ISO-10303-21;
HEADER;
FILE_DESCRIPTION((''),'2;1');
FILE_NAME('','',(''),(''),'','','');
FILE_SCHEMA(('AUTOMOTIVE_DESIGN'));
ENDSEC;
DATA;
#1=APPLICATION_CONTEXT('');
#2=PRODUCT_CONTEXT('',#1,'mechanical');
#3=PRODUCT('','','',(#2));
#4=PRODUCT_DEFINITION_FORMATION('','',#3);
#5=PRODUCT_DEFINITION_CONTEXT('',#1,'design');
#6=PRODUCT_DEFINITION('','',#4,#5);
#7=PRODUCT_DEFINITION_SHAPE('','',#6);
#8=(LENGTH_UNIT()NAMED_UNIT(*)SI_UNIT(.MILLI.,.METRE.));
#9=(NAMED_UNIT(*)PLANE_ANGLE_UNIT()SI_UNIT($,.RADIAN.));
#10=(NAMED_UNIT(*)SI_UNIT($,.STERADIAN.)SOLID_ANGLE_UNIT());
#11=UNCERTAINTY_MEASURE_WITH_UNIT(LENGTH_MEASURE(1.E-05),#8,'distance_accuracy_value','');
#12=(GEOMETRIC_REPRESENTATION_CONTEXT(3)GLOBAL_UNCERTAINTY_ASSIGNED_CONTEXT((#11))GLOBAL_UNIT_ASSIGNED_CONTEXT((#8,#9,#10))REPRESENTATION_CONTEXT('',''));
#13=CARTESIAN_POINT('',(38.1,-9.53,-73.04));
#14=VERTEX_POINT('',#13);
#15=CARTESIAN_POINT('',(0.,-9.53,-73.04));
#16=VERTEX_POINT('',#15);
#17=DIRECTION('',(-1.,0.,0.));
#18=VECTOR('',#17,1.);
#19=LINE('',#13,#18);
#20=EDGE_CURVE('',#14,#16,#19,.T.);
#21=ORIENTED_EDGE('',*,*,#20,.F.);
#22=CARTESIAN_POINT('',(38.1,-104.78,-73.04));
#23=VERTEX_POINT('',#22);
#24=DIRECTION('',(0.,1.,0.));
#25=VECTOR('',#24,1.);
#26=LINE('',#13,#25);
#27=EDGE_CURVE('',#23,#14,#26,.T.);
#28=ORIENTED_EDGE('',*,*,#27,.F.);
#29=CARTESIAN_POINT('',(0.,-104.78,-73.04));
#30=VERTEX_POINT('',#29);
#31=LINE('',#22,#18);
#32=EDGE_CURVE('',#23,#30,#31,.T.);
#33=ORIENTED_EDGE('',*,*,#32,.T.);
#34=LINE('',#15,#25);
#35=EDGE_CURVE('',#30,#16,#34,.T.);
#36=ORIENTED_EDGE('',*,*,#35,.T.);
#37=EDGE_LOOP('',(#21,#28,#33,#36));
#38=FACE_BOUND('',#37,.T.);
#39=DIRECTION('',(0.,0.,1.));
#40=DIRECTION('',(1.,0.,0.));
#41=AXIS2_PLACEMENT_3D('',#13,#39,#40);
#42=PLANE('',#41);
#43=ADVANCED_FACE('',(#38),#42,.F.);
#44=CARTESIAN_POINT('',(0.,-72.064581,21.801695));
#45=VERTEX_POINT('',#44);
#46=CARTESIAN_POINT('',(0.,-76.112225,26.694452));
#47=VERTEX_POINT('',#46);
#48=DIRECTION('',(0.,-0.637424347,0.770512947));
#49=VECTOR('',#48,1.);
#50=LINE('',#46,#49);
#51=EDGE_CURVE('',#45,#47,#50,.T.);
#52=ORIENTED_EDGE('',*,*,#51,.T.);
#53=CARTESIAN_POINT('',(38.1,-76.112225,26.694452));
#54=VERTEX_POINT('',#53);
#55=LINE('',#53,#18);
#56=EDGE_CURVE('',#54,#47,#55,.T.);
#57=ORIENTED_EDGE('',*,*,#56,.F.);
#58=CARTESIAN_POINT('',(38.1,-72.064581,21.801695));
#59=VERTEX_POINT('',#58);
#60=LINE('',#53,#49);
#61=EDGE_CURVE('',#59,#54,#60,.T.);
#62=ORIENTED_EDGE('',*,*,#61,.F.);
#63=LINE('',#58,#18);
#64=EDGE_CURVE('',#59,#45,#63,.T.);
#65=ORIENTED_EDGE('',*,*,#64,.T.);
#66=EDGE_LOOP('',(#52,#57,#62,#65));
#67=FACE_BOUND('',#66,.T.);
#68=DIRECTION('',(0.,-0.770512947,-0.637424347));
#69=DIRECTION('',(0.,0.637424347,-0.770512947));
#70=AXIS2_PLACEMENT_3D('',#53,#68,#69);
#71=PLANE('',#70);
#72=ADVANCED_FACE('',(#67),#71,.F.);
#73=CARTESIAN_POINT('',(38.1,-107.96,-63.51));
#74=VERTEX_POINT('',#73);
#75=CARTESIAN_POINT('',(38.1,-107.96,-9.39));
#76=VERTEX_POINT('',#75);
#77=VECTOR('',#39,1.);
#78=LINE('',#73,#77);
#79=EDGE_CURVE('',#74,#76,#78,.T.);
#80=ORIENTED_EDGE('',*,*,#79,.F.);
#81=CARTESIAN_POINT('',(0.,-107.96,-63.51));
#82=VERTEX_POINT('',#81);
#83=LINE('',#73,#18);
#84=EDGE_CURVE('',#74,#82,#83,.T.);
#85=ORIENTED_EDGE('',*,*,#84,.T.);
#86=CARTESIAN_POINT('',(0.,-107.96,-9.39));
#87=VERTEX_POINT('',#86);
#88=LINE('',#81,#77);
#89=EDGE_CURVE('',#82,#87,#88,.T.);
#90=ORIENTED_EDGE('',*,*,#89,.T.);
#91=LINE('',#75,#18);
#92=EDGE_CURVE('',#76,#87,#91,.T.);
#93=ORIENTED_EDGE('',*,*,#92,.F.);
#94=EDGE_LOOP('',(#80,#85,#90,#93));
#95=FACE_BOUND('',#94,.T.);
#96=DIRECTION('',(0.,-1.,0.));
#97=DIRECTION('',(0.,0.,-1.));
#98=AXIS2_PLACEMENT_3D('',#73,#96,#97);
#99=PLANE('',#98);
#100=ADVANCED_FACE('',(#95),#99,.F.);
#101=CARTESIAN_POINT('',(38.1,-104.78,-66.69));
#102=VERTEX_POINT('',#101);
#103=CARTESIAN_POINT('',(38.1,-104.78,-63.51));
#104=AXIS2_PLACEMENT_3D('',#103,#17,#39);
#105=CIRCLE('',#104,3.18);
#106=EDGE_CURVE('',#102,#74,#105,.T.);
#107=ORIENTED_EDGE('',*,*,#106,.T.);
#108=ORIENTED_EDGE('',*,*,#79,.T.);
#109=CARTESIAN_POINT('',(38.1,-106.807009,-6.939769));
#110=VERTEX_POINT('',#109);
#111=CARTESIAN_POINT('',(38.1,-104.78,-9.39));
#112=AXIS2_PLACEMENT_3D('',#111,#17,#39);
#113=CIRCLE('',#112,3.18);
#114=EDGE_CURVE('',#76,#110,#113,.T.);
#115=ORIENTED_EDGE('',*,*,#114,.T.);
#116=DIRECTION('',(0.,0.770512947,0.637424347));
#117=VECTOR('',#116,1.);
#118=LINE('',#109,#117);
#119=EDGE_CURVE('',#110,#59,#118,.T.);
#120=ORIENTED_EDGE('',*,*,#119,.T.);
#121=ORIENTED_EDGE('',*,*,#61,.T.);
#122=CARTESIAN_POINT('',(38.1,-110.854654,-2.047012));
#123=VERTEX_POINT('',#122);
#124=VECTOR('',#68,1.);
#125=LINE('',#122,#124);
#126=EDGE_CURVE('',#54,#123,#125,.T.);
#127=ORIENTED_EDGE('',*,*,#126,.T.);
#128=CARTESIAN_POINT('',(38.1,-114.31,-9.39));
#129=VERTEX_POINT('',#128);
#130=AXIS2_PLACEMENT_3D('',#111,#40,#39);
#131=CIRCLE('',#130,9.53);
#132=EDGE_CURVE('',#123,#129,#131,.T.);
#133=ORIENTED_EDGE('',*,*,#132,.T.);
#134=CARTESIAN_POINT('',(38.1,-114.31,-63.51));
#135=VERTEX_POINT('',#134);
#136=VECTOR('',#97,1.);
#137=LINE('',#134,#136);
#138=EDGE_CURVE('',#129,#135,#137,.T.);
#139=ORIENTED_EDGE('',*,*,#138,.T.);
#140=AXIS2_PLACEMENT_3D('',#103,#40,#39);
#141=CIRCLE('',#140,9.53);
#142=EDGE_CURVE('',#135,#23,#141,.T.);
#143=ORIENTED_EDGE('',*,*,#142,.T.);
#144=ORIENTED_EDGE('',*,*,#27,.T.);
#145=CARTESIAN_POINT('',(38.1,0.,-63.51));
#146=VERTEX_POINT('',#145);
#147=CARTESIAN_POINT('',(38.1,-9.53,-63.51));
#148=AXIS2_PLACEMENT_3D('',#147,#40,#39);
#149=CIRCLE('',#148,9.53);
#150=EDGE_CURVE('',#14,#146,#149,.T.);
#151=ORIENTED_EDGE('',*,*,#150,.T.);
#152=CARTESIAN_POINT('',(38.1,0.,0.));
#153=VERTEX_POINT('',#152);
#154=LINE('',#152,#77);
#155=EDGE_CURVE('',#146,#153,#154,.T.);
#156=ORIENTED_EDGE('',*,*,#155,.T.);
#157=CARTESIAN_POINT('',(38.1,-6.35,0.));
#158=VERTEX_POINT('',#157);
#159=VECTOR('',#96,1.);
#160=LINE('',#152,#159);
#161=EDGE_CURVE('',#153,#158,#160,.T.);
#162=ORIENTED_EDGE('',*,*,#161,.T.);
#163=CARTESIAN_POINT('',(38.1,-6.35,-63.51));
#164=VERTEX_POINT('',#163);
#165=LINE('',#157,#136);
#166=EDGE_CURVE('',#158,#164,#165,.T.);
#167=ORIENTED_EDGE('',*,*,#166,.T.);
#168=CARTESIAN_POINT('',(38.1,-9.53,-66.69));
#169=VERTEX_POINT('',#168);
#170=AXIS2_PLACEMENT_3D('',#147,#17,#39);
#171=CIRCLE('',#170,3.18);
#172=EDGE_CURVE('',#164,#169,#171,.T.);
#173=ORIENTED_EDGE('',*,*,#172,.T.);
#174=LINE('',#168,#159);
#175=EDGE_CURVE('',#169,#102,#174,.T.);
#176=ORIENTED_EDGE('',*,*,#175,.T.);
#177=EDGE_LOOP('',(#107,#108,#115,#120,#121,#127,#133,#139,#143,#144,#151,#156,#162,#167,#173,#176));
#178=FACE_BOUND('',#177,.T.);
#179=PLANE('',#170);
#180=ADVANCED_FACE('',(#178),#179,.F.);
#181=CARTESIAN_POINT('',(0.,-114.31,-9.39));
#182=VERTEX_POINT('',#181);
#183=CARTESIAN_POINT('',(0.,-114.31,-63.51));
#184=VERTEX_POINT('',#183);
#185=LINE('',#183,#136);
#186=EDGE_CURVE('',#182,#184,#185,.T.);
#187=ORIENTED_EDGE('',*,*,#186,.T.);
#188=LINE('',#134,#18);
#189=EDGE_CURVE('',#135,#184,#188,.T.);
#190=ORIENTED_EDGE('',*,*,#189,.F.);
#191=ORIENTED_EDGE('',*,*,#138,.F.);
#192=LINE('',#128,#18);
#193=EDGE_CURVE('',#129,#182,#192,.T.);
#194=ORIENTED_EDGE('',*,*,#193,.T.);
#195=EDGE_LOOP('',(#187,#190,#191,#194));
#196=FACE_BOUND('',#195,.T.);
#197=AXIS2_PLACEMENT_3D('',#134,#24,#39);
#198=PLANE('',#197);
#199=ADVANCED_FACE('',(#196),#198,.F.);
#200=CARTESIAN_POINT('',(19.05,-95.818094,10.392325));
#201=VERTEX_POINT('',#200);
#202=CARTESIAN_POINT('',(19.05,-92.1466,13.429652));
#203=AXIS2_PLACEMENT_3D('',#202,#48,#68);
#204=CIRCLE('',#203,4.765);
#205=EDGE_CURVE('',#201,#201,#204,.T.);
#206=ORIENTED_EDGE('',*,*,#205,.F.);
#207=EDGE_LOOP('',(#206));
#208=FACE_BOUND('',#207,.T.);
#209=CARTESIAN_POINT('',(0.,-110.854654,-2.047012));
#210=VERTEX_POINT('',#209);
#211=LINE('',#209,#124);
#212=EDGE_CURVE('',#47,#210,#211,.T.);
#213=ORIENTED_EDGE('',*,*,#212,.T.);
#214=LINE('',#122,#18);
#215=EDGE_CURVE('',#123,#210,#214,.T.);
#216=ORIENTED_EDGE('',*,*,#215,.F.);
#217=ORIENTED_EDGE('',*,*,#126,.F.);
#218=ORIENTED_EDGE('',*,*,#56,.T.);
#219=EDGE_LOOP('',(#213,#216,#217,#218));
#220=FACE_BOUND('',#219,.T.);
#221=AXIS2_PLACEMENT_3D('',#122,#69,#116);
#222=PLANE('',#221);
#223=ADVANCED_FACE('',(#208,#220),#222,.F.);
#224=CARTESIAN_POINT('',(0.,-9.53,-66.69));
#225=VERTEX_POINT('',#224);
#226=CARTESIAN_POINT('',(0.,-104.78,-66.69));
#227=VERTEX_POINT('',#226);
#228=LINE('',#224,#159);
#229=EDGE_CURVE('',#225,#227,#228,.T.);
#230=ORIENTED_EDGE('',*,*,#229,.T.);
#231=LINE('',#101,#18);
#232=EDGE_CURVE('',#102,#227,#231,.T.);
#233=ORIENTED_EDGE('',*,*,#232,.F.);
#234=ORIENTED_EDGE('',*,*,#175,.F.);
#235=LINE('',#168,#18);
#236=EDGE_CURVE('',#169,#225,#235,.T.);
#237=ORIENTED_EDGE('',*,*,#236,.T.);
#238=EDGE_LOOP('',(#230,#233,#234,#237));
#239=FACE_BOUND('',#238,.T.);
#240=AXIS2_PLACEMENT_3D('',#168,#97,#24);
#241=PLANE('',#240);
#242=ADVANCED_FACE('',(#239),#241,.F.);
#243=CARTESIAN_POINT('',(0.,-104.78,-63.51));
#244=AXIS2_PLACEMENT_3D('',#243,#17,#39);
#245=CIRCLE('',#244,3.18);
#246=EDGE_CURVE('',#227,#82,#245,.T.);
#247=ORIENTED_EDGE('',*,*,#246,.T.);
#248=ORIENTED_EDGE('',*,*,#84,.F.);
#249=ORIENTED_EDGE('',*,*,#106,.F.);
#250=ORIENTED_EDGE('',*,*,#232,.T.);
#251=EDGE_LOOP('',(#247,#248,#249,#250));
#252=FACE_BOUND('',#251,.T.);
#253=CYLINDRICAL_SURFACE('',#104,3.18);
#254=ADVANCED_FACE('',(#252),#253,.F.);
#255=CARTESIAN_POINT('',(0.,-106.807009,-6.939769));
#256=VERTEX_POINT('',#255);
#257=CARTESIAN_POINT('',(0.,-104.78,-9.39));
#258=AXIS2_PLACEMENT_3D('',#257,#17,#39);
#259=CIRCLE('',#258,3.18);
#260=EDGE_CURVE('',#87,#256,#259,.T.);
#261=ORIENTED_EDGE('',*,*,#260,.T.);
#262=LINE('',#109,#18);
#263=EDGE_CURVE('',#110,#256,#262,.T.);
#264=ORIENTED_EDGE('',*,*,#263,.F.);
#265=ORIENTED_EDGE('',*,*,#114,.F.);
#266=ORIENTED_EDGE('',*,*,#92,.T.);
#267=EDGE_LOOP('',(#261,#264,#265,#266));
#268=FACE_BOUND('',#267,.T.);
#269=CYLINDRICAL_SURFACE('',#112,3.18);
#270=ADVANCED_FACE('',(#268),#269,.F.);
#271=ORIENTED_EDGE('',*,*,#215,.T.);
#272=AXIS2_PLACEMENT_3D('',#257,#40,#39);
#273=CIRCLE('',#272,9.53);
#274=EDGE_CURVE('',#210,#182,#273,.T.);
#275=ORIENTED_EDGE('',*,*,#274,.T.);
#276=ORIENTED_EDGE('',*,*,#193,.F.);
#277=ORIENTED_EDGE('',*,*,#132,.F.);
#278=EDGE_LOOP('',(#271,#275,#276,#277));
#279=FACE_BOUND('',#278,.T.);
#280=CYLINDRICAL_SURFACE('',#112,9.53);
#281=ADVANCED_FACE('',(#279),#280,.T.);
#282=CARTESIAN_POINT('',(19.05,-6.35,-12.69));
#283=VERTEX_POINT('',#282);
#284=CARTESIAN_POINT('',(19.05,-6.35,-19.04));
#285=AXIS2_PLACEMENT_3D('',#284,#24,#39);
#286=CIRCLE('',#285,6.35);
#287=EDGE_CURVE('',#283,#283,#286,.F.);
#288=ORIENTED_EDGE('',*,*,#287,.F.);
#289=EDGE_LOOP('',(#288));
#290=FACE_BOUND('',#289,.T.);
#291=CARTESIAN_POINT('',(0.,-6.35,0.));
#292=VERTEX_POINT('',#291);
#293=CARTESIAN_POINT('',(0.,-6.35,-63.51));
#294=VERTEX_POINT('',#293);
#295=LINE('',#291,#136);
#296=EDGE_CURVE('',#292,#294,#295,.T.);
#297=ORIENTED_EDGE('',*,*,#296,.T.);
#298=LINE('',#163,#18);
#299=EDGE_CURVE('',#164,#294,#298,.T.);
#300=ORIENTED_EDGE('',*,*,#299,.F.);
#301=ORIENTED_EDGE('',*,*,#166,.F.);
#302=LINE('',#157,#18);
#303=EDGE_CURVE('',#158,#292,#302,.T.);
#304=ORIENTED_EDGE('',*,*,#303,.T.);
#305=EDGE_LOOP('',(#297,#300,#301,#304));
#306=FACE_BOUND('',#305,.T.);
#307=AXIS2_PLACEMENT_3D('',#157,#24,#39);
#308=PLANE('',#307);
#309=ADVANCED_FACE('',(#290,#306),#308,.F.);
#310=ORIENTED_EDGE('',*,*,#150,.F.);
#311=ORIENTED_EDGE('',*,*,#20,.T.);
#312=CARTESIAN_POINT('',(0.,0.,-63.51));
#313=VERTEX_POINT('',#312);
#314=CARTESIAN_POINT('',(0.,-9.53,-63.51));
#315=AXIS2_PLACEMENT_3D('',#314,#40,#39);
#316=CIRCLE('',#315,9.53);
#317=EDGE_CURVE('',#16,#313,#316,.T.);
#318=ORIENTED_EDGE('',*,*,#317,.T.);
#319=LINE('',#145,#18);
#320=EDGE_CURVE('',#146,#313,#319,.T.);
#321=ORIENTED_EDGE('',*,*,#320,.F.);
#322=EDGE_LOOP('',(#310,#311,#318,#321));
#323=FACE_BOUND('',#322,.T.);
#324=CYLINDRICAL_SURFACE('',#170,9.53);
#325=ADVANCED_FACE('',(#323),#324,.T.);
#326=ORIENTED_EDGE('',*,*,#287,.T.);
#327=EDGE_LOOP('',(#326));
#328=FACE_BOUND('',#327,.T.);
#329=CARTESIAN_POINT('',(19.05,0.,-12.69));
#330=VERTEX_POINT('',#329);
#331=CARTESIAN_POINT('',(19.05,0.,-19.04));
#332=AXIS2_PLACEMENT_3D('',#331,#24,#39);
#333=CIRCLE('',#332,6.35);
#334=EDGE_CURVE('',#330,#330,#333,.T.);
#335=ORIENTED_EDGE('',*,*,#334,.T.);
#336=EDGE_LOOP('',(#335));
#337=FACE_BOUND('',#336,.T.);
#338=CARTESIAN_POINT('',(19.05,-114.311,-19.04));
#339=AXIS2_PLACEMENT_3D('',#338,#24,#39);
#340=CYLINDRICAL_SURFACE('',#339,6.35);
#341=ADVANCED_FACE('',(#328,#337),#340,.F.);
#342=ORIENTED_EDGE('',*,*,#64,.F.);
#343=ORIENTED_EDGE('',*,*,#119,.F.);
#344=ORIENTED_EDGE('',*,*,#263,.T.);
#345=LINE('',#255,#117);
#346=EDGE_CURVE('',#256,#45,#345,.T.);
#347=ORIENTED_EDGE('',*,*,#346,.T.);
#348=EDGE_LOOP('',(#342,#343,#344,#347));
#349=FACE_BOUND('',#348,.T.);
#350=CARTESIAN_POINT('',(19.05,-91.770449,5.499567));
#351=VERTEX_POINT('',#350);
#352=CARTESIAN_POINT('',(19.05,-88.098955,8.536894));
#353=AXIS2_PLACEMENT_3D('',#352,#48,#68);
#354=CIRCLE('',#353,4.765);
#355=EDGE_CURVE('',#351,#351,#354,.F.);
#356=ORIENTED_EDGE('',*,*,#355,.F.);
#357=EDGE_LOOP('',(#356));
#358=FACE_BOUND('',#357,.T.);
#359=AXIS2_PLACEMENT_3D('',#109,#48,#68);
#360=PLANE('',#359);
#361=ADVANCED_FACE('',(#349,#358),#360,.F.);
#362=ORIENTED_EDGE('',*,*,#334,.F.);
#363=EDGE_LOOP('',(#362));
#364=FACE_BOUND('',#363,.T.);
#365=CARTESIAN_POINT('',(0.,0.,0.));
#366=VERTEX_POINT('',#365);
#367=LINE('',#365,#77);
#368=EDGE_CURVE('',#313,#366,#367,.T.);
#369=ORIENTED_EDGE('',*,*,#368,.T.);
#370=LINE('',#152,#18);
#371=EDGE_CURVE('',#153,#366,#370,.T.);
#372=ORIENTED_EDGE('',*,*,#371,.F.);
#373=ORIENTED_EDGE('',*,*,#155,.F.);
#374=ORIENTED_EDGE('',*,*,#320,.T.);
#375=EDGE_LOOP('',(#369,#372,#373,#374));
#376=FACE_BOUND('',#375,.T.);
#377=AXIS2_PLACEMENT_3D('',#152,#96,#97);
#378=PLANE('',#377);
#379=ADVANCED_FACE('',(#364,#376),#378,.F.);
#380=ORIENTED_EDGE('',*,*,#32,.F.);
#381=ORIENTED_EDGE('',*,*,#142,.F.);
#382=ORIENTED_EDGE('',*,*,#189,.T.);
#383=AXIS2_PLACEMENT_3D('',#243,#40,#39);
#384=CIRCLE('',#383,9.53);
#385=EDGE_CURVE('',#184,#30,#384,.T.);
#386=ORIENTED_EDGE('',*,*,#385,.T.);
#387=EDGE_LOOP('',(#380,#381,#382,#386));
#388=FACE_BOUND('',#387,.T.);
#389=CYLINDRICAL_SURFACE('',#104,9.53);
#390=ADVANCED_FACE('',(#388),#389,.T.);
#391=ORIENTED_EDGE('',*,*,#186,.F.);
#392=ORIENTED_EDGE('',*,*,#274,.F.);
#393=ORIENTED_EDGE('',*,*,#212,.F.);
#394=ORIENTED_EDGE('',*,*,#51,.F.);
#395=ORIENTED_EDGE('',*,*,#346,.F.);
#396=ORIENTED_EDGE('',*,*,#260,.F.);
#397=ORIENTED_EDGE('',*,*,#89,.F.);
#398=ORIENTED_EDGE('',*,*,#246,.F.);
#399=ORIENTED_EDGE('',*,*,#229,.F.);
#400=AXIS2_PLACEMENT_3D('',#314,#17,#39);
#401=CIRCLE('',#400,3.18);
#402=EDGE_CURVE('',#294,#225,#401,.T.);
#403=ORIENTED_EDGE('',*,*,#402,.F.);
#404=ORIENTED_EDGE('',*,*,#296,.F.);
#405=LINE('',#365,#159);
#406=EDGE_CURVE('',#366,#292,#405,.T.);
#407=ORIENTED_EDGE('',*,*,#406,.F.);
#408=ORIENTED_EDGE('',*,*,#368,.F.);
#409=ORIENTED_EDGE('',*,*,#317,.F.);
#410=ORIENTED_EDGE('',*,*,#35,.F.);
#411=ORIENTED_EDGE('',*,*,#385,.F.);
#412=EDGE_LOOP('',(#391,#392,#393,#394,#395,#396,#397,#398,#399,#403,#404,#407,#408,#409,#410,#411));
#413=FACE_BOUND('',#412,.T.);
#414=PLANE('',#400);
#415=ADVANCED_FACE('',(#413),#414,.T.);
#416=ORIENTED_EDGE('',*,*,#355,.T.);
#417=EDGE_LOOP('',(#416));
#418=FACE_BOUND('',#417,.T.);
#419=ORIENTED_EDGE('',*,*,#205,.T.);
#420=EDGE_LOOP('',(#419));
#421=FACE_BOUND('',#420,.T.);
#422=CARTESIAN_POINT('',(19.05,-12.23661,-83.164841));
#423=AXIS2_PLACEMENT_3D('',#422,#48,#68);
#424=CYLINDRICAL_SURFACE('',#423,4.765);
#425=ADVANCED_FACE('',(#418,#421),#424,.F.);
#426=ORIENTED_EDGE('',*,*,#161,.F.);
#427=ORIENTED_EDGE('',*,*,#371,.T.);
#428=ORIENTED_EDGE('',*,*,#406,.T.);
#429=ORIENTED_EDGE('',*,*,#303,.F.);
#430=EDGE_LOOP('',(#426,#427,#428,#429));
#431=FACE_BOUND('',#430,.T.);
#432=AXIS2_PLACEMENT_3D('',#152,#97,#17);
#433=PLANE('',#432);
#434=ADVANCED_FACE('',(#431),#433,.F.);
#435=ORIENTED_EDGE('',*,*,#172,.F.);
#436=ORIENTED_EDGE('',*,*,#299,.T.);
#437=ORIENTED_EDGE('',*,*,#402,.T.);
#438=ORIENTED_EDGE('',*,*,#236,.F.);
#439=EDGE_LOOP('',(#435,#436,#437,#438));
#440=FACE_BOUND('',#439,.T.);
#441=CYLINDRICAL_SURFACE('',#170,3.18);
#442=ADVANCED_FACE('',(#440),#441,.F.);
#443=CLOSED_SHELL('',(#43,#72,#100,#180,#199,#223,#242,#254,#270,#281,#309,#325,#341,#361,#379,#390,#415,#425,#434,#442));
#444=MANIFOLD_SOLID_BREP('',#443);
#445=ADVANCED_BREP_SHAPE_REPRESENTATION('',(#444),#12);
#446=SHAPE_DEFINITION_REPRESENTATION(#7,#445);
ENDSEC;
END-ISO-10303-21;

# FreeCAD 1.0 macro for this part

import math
import FreeCAD as App
import Part
import Sketcher

V = App.Vector
Q = App.Units.Quantity

doc = App.newDocument("Part")
body = doc.addObject("PartDesign::Body", "Body")

# Sketch on YZ plane
sketch1 = body.newObject("Sketcher::SketchObject", "Sketch")
sketch1.AttachmentSupport = (doc.getObject("YZ_Plane"), [""])
sketch1.MapMode = "FlatFace"
sketch1.addGeometry(Part.LineSegment(V(0, -63.5, 0), V(0, 0, 0)), False)
sketch1.addGeometry(Part.LineSegment(V(0, 0, 0), V(-6.3, 0, 0)), False)
sketch1.addGeometry(Part.LineSegment(V(-6.3, 0, 0), V(-6.3, -63.5, 0)), False)
sketch1.addGeometry(Part.ArcOfCircle(Part.Circle(V(-9.5, -63.5, 0), V(0, 0, 1), 3.2), math.radians(-90), math.radians(0)), False)
sketch1.addGeometry(Part.LineSegment(V(-9.5, -66.7, 0), V(-104.8, -66.7, 0)), False)
sketch1.addGeometry(Part.ArcOfCircle(Part.Circle(V(-104.8, -63.5, 0), V(0, 0, 1), 3.2), math.radians(-180), math.radians(-90)), False)
sketch1.addGeometry(Part.LineSegment(V(-108, -63.5, 0), V(-108, -9.4, 0)), False)
sketch1.addGeometry(Part.ArcOfCircle(Part.Circle(V(-104.8, -9.4, 0), V(0, 0, 1), 3.2), math.radians(130), math.radians(180)), False)
sketch1.addGeometry(Part.LineSegment(V(-106.8, -6.9, 0), V(-72.1, 21.8, 0)), False)
sketch1.addGeometry(Part.LineSegment(V(-72.1, 21.8, 0), V(-76.1, 26.7, 0)), False)
sketch1.addGeometry(Part.LineSegment(V(-76.1, 26.7, 0), V(-110.9, -2, 0)), False)
sketch1.addGeometry(Part.ArcOfCircle(Part.Circle(V(-104.8, -9.4, 0), V(0, 0, 1), 9.5), math.radians(130), math.radians(180)), False)
sketch1.addGeometry(Part.LineSegment(V(-114.3, -9.4, 0), V(-114.3, -63.5, 0)), False)
sketch1.addGeometry(Part.ArcOfCircle(Part.Circle(V(-104.8, -63.5, 0), V(0, 0, 1), 9.5), math.radians(180), math.radians(270)), False)
sketch1.addGeometry(Part.LineSegment(V(-104.8, -73, 0), V(-9.5, -73, 0)), False)
sketch1.addGeometry(Part.ArcOfCircle(Part.Circle(V(-9.5, -63.5, 0), V(0, 0, 1), 9.5), math.radians(-90), math.radians(0)), False)
sketch1.addConstraint(Sketcher.Constraint("Coincident", 0, 2, 1, 1))
sketch1.addConstraint(Sketcher.Constraint("Coincident", 1, 2, 2, 1))
sketch1.addConstraint(Sketcher.Constraint("Tangent", 2, 2, 3, 2))
sketch1.addConstraint(Sketcher.Constraint("Tangent", 3, 1, 4, 1))
sketch1.addConstraint(Sketcher.Constraint("Tangent", 4, 2, 5, 2))
sketch1.addConstraint(Sketcher.Constraint("Tangent", 5, 1, 6, 1))
sketch1.addConstraint(Sketcher.Constraint("Tangent", 6, 2, 7, 2))
sketch1.addConstraint(Sketcher.Constraint("Tangent", 7, 1, 8, 1))
sketch1.addConstraint(Sketcher.Constraint("Coincident", 8, 2, 9, 1))
sketch1.addConstraint(Sketcher.Constraint("Coincident", 9, 2, 10, 1))
sketch1.addConstraint(Sketcher.Constraint("Tangent", 10, 2, 11, 1))
sketch1.addConstraint(Sketcher.Constraint("Tangent", 11, 2, 12, 1))
sketch1.addConstraint(Sketcher.Constraint("Tangent", 12, 2, 13, 1))
sketch1.addConstraint(Sketcher.Constraint("Tangent", 13, 2, 14, 1))
sketch1.addConstraint(Sketcher.Constraint("Tangent", 14, 2, 15, 1))
sketch1.addConstraint(Sketcher.Constraint("Tangent", 15, 2, 0, 1))
sketch1.addConstraint(Sketcher.Constraint("Vertical", 0))
sketch1.addConstraint(Sketcher.Constraint("Horizontal", 1))
sketch1.addConstraint(Sketcher.Constraint("Vertical", 2))
sketch1.addConstraint(Sketcher.Constraint("Horizontal", 4))
sketch1.addConstraint(Sketcher.Constraint("Vertical", 6))
sketch1.addConstraint(Sketcher.Constraint("Vertical", 12))
sketch1.addConstraint(Sketcher.Constraint("Horizontal", 14))
sketch1.addConstraint(Sketcher.Constraint("Coincident", 0, 2, -1, 1))
sketch1.addConstraint(Sketcher.Constraint("Coincident", 11, 3, 7, 3))
sketch1.addConstraint(Sketcher.Constraint("Coincident", 13, 3, 5, 3))
sketch1.addConstraint(Sketcher.Constraint("Coincident", 15, 3, 3, 3))
sketch1.addConstraint(Sketcher.Constraint("Equal", 3, 5))
sketch1.addConstraint(Sketcher.Constraint("Equal", 5, 7))
sketch1.addConstraint(Sketcher.Constraint("Perpendicular", 8, 9))
sketch1.addConstraint(Sketcher.Constraint("Perpendicular", 9, 10))
sketch1.addConstraint(Sketcher.Constraint("DistanceX", 1, 2, 1, 1, Q("0.25 in")))
sketch1.addConstraint(Sketcher.Constraint("DistanceX", 4, 2, 4, 1, Q("3.75 in")))
sketch1.addConstraint(Sketcher.Constraint("Radius", 3, 3.18))
sketch1.addConstraint(Sketcher.Constraint("DistanceY", 0, 1, 0, 2, 63.51))
sketch1.addConstraint(Sketcher.Constraint("DistanceY", 6, 1, 6, 2, 54.12))
sketch1.addConstraint(Sketcher.Constraint("Distance", 8, 45.09))
sketch1.addConstraint(Sketcher.Constraint("DistanceX", 7, 1, -1, 1, 106.807009))
pad1 = body.newObject("PartDesign::Pad", "Pad")
pad1.Profile = sketch1
pad1.Length = Q("1.5 in")

# Sketch on XZ plane
sketch2 = body.newObject("Sketcher::SketchObject", "Sketch001")
sketch2.AttachmentSupport = (doc.getObject("XZ_Plane"), [""])
sketch2.MapMode = "FlatFace"
sketch2.addGeometry(Part.Circle(V(19, -19, 0), V(0, 0, 1), 6), False)
sketch2.addConstraint(Sketcher.Constraint("Diameter", 0, Q("0.5 in")))
sketch2.addConstraint(Sketcher.Constraint("DistanceX", -1, 1, 0, 3, Q("0.75 in")))
sketch2.addConstraint(Sketcher.Constraint("DistanceY", 0, 3, -1, 1, 19.04))
pocket1 = body.newObject("PartDesign::Pocket", "Pocket")
pocket1.Profile = sketch2
pocket1.Type = "UpToFirst"
pocket1.Reversed = True

# Sketch on an angled plane
sketch3 = body.newObject("Sketcher::SketchObject", "Sketch002")
sketch3.Placement = App.Placement(V(0, -44.035955, 53.230276), App.Rotation(V(1, 0, 0), V(0, 0.770512947, 0.637424347), V(0, -0.637424347, 0.770512947), "ZXY"))
sketch3.addGeometry(Part.Circle(V(19.1, -62.4, 0), V(0, 0, 1), 4.8), False)
sketch3.addConstraint(Sketcher.Constraint("Diameter", 0, 9.53))
sketch3.addConstraint(Sketcher.Constraint("DistanceX", -1, 1, 0, 3, Q("0.75 in")))
sketch3.addConstraint(Sketcher.Constraint("DistanceY", 0, 3, -1, 1, 62.439761))
pocket2 = body.newObject("PartDesign::Pocket", "Pocket001")
pocket2.Profile = sketch3
pocket2.Type = "UpToFirst"

doc.recompute()
